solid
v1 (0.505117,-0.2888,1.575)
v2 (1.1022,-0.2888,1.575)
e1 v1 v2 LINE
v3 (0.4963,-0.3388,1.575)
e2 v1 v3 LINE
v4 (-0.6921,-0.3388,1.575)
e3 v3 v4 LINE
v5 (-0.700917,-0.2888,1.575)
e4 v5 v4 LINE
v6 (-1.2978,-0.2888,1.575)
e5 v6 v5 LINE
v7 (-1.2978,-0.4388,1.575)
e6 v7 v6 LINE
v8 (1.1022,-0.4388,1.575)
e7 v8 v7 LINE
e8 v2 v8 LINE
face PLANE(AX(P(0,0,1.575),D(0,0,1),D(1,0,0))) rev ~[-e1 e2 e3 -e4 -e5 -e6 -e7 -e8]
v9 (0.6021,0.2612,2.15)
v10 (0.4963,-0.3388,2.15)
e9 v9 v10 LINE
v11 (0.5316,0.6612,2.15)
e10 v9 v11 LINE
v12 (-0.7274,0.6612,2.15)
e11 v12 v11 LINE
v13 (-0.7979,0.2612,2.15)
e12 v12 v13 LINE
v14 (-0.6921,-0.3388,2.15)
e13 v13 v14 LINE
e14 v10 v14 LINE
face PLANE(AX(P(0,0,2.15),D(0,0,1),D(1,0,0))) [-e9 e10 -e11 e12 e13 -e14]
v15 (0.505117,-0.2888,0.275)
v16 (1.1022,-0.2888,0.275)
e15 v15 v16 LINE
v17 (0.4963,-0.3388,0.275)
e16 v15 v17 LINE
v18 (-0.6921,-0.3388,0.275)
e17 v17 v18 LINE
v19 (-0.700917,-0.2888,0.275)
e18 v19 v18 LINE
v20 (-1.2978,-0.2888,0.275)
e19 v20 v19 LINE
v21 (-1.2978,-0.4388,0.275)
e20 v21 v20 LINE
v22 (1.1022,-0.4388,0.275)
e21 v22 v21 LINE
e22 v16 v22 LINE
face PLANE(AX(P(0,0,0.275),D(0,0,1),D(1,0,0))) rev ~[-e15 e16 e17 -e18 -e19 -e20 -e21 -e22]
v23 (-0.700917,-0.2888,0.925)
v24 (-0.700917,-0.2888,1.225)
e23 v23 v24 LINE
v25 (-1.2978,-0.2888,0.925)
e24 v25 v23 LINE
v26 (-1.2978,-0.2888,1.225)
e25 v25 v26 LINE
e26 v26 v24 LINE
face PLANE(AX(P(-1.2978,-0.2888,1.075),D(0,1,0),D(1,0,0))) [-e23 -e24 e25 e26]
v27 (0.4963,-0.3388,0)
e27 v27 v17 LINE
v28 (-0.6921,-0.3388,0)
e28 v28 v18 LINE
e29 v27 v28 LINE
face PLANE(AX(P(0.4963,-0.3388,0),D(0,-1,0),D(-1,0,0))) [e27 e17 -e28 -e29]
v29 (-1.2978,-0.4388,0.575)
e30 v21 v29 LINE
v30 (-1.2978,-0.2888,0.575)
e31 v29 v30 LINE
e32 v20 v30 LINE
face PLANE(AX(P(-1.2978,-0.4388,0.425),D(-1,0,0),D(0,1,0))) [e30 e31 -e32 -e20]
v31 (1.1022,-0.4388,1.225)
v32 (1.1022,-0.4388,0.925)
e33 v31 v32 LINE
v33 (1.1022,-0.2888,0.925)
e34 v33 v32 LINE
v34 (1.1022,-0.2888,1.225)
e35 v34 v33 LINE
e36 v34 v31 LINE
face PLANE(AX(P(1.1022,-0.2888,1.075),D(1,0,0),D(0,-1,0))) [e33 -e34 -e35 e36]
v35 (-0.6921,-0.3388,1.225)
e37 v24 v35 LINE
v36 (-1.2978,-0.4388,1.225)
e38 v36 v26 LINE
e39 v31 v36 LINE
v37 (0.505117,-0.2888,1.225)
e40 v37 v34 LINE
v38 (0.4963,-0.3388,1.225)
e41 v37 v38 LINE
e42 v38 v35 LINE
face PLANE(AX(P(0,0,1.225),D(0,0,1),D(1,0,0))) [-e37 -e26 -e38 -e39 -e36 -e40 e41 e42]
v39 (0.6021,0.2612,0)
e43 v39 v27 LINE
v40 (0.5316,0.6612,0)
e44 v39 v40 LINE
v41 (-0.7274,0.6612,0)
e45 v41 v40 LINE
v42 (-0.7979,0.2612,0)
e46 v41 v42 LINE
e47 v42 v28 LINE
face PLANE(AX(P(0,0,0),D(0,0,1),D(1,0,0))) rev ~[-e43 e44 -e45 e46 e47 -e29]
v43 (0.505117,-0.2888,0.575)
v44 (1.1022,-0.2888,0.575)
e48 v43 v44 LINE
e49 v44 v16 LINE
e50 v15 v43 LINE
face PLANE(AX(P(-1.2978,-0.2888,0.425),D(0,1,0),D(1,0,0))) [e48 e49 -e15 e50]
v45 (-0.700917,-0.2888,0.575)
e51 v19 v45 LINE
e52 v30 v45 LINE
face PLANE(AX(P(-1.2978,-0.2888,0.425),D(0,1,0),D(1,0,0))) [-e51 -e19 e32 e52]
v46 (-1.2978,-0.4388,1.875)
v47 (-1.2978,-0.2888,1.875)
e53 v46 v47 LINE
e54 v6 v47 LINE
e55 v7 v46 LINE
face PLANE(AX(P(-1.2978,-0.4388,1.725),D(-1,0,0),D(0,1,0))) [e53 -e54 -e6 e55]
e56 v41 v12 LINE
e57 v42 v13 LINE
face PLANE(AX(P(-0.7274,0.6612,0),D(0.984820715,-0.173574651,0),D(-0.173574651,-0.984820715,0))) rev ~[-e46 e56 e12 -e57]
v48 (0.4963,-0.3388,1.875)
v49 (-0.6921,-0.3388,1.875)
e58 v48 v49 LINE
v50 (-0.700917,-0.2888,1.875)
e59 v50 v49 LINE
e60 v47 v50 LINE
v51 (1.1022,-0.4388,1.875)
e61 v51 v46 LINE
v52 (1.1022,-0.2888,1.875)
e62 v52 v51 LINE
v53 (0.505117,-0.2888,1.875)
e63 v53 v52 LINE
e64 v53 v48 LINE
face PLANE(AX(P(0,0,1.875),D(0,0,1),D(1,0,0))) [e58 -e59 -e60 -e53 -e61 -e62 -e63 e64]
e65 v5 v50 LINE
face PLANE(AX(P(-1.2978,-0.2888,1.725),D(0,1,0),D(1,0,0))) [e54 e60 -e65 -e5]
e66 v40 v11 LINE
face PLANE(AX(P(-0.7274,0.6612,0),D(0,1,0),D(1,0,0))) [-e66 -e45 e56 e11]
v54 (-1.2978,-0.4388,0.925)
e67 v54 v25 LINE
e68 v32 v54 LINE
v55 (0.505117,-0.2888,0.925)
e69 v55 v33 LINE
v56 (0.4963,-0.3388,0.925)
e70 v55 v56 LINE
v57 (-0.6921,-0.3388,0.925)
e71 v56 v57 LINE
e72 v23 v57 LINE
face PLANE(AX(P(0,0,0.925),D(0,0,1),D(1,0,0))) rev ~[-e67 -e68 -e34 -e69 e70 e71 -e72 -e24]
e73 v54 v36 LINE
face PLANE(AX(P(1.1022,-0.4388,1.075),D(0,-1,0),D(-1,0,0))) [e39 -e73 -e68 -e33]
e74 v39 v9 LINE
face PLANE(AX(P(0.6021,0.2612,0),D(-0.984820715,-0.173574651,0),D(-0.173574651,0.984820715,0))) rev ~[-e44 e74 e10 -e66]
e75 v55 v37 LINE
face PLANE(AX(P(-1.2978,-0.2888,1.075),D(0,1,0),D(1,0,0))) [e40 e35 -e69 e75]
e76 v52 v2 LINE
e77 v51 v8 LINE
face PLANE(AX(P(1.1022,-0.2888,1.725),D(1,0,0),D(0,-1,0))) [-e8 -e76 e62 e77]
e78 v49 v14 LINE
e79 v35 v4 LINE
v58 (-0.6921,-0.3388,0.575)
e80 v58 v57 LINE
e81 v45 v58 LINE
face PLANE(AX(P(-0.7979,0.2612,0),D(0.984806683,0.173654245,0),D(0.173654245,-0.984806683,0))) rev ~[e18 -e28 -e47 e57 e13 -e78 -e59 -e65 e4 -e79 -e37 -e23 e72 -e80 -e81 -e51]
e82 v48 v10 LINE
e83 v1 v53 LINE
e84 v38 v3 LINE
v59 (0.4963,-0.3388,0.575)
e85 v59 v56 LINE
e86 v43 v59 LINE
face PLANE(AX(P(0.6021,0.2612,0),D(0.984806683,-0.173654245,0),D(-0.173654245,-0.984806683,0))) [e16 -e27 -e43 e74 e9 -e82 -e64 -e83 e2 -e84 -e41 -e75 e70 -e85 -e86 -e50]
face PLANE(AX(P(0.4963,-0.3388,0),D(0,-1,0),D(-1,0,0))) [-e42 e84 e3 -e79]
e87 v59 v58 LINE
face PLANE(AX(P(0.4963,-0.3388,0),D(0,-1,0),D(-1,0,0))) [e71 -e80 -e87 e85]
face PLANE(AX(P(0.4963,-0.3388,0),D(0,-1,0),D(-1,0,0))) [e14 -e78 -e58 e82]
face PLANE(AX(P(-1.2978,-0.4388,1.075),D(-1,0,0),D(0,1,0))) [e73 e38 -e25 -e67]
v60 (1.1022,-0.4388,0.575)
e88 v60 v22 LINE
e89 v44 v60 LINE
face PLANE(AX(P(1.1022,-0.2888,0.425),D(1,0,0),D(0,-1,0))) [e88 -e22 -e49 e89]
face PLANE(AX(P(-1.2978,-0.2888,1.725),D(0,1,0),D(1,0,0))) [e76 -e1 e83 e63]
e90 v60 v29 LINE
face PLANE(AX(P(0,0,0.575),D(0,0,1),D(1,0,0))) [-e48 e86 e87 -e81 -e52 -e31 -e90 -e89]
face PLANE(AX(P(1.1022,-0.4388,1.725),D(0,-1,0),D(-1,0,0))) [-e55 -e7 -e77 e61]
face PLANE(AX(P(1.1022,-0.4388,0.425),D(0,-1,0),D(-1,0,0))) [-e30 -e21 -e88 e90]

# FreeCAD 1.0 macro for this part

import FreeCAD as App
import Part
import Sketcher
from FreeCAD import Vector
Q = App.Units.Quantity


def add_polygon(sketch, points):
    """Adds a closed chain of lines whose ends are joined by coincident constraints."""
    first, n = sketch.GeometryCount, len(points)
    for a, b in zip(points, points[1:] + points[:1]):
        sketch.addGeometry(Part.LineSegment(App.Vector(*a, 0), App.Vector(*b, 0)), False)
    for i in range(n):
        sketch.addConstraint(Sketcher.Constraint("Coincident", first + i, 2, first + (i + 1) % n, 1))

doc = App.newDocument("Part")
body = doc.addObject("PartDesign::Body", "Body")

# Sketch on XY plane
sketch1 = doc.addObject("Sketcher::SketchObject", "Sketch")
body.addObject(sketch1)
sketch1.AttachmentSupport = (doc.XY_Plane, [""])
sketch1.MapMode = "FlatFace"
add_polygon(sketch1, [(0.53, 0.66), (-0.73, 0.66), (-0.8, 0.26), (-0.69, -0.34), (0.5, -0.34), (0.6, 0.26)])  # lines 0-5
sketch1.addConstraint(Sketcher.Constraint("Horizontal", 0))
sketch1.addConstraint(Sketcher.Constraint("Horizontal", 3))
sketch1.addConstraint(Sketcher.Constraint("Parallel", 1, 4))
sketch1.addConstraint(Sketcher.Constraint("Parallel", 2, 5))
sketch1.addConstraint(Sketcher.Constraint("Horizontal", 1, 2, 4, 2))
sketch1.addConstraint(Sketcher.Constraint("Equal", 2, 4))
sketch1.addConstraint(Sketcher.Constraint("Angle", 2, Q("-79.9996 deg")))
sketch1.addConstraint(Sketcher.Constraint("DistanceY", 1, 2, 0, 2, Q("0.4 mm")))
sketch1.addConstraint(Sketcher.Constraint("DistanceY", 2, 2, 0, 2, Q("1 mm")))
sketch1.addConstraint(Sketcher.Constraint("DistanceX", 1, 2, 4, 2, Q("1.4 mm")))
sketch1.addConstraint(Sketcher.Constraint("DistanceX", -1, 1, 4, 2, Q("0.0237 in")))
sketch1.addConstraint(Sketcher.Constraint("DistanceY", -1, 1, 0, 2, Q("0.6612 mm")))
pad1 = doc.addObject("PartDesign::Pad", "Pad")
body.addObject(pad1)
pad1.Profile = sketch1
pad1.Length = 2.15

# Sketch on XY plane
sketch2 = doc.addObject("Sketcher::SketchObject", "Sketch001")
body.addObject(sketch2)
sketch2.AttachmentSupport = (doc.XY_Plane, [""])
sketch2.MapMode = "FlatFace"
sketch2.AttachmentOffset = App.Placement(Vector(0, 0, 1.725), App.Rotation())
add_polygon(sketch2, [(1.1, -0.29), (-1.3, -0.29), (-1.3, -0.44), (1.1, -0.44)])  # lines 0-3
sketch2.addConstraint(Sketcher.Constraint("Horizontal", 0))
sketch2.addConstraint(Sketcher.Constraint("Vertical", 1))
sketch2.addConstraint(Sketcher.Constraint("Horizontal", 2))
sketch2.addConstraint(Sketcher.Constraint("Vertical", 3))
sketch2.addConstraint(Sketcher.Constraint("DistanceX", 0, 2, 0, 1, Q("0.0945 in")))
sketch2.addConstraint(Sketcher.Constraint("DistanceY", 1, 2, 1, 1, Q("0.0059 in")))
sketch2.addConstraint(Sketcher.Constraint("DistanceX", 0, 2, -1, 1, Q("0.0511 in")))
sketch2.addConstraint(Sketcher.Constraint("DistanceY", 0, 2, -1, 1, Q("0.2888 mm")))
pad2 = doc.addObject("PartDesign::Pad", "Pad001")
body.addObject(pad2)
pad2.Profile = sketch2
pad2.Length = Q("0.011811 in")
pad2.Midplane = True
doc.recompute()

linearpattern = doc.addObject("PartDesign::LinearPattern", "LinearPattern")
body.addObject(linearpattern)
linearpattern.Originals = [pad2]
linearpattern.Direction = (doc.Z_Axis, [""])
linearpattern.Mode = "offset"
linearpattern.Offset = Q("0.0255906 in")
linearpattern.Occurrences = 3
linearpattern.Reversed = True
body.Tip = linearpattern

doc.recompute()
